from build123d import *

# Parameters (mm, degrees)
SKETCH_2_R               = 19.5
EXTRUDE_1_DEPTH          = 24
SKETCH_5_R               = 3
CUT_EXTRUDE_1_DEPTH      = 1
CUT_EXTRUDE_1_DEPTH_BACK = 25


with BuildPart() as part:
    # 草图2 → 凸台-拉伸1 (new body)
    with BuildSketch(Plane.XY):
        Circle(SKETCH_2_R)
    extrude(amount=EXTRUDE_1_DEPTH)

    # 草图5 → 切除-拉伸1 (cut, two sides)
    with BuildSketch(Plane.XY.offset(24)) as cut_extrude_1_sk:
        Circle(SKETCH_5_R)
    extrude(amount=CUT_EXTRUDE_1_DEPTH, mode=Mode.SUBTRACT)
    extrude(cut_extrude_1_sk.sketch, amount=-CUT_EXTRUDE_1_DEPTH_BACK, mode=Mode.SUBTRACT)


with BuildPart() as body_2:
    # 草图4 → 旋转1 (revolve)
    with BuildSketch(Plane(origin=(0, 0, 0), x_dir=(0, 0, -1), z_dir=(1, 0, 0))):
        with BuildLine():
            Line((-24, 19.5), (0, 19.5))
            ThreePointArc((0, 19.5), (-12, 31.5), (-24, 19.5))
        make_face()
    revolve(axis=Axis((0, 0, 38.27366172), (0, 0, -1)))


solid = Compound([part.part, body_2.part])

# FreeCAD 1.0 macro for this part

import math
import FreeCAD as App
import Part
import Sketcher

V = App.Vector
Q = App.Units.Quantity

doc = App.newDocument("Part")
body = doc.addObject("PartDesign::Body", "Body")

# Sketch on XY plane
sketch1 = body.newObject("Sketcher::SketchObject", "Sketch")
sketch1.AttachmentSupport = (doc.getObject("XY_Plane"), [""])
sketch1.MapMode = "FlatFace"
sketch1.addGeometry(Part.Circle(V(0, 0, 0), V(0, 0, 1), 19.5), False)
sketch1.addConstraint([
    Sketcher.Constraint("Coincident", 0, 3, -1, 1),
    Sketcher.Constraint("Diameter", 0, Q("39 mm")),
])
pad1 = body.newObject("PartDesign::Pad", "Pad")
pad1.Profile = sketch1
pad1.Length = 24

# Sketch on XY plane
sketch2 = body.newObject("Sketcher::SketchObject", "Sketch001")
sketch2.AttachmentSupport = (doc.getObject("XY_Plane"), [""])
sketch2.MapMode = "FlatFace"
sketch2.AttachmentOffset = App.Placement(V(0, 0, 24), App.Rotation())
sketch2.addGeometry(Part.Circle(V(0, 0, 0), V(0, 0, 1), 3), False)
sketch2.addConstraint([
    Sketcher.Constraint("Coincident", 0, 3, -1, 1),
    Sketcher.Constraint("Diameter", 0, Q("6 mm")),
])
pocket1 = body.newObject("PartDesign::Pocket", "Pocket")
pocket1.Profile = sketch2
pocket1.Type = "ThroughAll"
pocket1.Midplane = True
body2 = doc.addObject("PartDesign::Body", "Body001")

# Sketch on YZ plane
sketch3 = body2.newObject("Sketcher::SketchObject", "Sketch002")
sketch3.AttachmentSupport = (doc.getObject("YZ_Plane001"), [""])
sketch3.MapMode = "FlatFace"
sketch3.addGeometry([
    Part.LineSegment(V(19.5, 24, 0), V(19.5, 0, 0)),
    Part.ArcOfCircle(Part.Circle(V(19.5, 12, 0), V(0, 0, 1), 12), math.radians(-90), math.radians(90)),
], False)
sketch3.addConstraint([
    Sketcher.Constraint("Coincident", 0, 1, 1, 2),
    Sketcher.Constraint("Coincident", 1, 1, 0, 2),
    Sketcher.Constraint("Vertical", 0),
    Sketcher.Constraint("PointOnObject", 1, 1, -1),
    Sketcher.Constraint("Vertical", 1, 3, 0, 1),
    Sketcher.Constraint("Radius", 1, Q("12 mm")),
    Sketcher.Constraint("DistanceX", -1, 1, 1, 3, Q("19.5 mm")),
])
revolution = body2.newObject("PartDesign::Revolution", "Revolution")
revolution.Profile = sketch3
revolution.ReferenceAxis = (sketch3, ["V_Axis"])
revolution.Angle = 360

doc.recompute()
